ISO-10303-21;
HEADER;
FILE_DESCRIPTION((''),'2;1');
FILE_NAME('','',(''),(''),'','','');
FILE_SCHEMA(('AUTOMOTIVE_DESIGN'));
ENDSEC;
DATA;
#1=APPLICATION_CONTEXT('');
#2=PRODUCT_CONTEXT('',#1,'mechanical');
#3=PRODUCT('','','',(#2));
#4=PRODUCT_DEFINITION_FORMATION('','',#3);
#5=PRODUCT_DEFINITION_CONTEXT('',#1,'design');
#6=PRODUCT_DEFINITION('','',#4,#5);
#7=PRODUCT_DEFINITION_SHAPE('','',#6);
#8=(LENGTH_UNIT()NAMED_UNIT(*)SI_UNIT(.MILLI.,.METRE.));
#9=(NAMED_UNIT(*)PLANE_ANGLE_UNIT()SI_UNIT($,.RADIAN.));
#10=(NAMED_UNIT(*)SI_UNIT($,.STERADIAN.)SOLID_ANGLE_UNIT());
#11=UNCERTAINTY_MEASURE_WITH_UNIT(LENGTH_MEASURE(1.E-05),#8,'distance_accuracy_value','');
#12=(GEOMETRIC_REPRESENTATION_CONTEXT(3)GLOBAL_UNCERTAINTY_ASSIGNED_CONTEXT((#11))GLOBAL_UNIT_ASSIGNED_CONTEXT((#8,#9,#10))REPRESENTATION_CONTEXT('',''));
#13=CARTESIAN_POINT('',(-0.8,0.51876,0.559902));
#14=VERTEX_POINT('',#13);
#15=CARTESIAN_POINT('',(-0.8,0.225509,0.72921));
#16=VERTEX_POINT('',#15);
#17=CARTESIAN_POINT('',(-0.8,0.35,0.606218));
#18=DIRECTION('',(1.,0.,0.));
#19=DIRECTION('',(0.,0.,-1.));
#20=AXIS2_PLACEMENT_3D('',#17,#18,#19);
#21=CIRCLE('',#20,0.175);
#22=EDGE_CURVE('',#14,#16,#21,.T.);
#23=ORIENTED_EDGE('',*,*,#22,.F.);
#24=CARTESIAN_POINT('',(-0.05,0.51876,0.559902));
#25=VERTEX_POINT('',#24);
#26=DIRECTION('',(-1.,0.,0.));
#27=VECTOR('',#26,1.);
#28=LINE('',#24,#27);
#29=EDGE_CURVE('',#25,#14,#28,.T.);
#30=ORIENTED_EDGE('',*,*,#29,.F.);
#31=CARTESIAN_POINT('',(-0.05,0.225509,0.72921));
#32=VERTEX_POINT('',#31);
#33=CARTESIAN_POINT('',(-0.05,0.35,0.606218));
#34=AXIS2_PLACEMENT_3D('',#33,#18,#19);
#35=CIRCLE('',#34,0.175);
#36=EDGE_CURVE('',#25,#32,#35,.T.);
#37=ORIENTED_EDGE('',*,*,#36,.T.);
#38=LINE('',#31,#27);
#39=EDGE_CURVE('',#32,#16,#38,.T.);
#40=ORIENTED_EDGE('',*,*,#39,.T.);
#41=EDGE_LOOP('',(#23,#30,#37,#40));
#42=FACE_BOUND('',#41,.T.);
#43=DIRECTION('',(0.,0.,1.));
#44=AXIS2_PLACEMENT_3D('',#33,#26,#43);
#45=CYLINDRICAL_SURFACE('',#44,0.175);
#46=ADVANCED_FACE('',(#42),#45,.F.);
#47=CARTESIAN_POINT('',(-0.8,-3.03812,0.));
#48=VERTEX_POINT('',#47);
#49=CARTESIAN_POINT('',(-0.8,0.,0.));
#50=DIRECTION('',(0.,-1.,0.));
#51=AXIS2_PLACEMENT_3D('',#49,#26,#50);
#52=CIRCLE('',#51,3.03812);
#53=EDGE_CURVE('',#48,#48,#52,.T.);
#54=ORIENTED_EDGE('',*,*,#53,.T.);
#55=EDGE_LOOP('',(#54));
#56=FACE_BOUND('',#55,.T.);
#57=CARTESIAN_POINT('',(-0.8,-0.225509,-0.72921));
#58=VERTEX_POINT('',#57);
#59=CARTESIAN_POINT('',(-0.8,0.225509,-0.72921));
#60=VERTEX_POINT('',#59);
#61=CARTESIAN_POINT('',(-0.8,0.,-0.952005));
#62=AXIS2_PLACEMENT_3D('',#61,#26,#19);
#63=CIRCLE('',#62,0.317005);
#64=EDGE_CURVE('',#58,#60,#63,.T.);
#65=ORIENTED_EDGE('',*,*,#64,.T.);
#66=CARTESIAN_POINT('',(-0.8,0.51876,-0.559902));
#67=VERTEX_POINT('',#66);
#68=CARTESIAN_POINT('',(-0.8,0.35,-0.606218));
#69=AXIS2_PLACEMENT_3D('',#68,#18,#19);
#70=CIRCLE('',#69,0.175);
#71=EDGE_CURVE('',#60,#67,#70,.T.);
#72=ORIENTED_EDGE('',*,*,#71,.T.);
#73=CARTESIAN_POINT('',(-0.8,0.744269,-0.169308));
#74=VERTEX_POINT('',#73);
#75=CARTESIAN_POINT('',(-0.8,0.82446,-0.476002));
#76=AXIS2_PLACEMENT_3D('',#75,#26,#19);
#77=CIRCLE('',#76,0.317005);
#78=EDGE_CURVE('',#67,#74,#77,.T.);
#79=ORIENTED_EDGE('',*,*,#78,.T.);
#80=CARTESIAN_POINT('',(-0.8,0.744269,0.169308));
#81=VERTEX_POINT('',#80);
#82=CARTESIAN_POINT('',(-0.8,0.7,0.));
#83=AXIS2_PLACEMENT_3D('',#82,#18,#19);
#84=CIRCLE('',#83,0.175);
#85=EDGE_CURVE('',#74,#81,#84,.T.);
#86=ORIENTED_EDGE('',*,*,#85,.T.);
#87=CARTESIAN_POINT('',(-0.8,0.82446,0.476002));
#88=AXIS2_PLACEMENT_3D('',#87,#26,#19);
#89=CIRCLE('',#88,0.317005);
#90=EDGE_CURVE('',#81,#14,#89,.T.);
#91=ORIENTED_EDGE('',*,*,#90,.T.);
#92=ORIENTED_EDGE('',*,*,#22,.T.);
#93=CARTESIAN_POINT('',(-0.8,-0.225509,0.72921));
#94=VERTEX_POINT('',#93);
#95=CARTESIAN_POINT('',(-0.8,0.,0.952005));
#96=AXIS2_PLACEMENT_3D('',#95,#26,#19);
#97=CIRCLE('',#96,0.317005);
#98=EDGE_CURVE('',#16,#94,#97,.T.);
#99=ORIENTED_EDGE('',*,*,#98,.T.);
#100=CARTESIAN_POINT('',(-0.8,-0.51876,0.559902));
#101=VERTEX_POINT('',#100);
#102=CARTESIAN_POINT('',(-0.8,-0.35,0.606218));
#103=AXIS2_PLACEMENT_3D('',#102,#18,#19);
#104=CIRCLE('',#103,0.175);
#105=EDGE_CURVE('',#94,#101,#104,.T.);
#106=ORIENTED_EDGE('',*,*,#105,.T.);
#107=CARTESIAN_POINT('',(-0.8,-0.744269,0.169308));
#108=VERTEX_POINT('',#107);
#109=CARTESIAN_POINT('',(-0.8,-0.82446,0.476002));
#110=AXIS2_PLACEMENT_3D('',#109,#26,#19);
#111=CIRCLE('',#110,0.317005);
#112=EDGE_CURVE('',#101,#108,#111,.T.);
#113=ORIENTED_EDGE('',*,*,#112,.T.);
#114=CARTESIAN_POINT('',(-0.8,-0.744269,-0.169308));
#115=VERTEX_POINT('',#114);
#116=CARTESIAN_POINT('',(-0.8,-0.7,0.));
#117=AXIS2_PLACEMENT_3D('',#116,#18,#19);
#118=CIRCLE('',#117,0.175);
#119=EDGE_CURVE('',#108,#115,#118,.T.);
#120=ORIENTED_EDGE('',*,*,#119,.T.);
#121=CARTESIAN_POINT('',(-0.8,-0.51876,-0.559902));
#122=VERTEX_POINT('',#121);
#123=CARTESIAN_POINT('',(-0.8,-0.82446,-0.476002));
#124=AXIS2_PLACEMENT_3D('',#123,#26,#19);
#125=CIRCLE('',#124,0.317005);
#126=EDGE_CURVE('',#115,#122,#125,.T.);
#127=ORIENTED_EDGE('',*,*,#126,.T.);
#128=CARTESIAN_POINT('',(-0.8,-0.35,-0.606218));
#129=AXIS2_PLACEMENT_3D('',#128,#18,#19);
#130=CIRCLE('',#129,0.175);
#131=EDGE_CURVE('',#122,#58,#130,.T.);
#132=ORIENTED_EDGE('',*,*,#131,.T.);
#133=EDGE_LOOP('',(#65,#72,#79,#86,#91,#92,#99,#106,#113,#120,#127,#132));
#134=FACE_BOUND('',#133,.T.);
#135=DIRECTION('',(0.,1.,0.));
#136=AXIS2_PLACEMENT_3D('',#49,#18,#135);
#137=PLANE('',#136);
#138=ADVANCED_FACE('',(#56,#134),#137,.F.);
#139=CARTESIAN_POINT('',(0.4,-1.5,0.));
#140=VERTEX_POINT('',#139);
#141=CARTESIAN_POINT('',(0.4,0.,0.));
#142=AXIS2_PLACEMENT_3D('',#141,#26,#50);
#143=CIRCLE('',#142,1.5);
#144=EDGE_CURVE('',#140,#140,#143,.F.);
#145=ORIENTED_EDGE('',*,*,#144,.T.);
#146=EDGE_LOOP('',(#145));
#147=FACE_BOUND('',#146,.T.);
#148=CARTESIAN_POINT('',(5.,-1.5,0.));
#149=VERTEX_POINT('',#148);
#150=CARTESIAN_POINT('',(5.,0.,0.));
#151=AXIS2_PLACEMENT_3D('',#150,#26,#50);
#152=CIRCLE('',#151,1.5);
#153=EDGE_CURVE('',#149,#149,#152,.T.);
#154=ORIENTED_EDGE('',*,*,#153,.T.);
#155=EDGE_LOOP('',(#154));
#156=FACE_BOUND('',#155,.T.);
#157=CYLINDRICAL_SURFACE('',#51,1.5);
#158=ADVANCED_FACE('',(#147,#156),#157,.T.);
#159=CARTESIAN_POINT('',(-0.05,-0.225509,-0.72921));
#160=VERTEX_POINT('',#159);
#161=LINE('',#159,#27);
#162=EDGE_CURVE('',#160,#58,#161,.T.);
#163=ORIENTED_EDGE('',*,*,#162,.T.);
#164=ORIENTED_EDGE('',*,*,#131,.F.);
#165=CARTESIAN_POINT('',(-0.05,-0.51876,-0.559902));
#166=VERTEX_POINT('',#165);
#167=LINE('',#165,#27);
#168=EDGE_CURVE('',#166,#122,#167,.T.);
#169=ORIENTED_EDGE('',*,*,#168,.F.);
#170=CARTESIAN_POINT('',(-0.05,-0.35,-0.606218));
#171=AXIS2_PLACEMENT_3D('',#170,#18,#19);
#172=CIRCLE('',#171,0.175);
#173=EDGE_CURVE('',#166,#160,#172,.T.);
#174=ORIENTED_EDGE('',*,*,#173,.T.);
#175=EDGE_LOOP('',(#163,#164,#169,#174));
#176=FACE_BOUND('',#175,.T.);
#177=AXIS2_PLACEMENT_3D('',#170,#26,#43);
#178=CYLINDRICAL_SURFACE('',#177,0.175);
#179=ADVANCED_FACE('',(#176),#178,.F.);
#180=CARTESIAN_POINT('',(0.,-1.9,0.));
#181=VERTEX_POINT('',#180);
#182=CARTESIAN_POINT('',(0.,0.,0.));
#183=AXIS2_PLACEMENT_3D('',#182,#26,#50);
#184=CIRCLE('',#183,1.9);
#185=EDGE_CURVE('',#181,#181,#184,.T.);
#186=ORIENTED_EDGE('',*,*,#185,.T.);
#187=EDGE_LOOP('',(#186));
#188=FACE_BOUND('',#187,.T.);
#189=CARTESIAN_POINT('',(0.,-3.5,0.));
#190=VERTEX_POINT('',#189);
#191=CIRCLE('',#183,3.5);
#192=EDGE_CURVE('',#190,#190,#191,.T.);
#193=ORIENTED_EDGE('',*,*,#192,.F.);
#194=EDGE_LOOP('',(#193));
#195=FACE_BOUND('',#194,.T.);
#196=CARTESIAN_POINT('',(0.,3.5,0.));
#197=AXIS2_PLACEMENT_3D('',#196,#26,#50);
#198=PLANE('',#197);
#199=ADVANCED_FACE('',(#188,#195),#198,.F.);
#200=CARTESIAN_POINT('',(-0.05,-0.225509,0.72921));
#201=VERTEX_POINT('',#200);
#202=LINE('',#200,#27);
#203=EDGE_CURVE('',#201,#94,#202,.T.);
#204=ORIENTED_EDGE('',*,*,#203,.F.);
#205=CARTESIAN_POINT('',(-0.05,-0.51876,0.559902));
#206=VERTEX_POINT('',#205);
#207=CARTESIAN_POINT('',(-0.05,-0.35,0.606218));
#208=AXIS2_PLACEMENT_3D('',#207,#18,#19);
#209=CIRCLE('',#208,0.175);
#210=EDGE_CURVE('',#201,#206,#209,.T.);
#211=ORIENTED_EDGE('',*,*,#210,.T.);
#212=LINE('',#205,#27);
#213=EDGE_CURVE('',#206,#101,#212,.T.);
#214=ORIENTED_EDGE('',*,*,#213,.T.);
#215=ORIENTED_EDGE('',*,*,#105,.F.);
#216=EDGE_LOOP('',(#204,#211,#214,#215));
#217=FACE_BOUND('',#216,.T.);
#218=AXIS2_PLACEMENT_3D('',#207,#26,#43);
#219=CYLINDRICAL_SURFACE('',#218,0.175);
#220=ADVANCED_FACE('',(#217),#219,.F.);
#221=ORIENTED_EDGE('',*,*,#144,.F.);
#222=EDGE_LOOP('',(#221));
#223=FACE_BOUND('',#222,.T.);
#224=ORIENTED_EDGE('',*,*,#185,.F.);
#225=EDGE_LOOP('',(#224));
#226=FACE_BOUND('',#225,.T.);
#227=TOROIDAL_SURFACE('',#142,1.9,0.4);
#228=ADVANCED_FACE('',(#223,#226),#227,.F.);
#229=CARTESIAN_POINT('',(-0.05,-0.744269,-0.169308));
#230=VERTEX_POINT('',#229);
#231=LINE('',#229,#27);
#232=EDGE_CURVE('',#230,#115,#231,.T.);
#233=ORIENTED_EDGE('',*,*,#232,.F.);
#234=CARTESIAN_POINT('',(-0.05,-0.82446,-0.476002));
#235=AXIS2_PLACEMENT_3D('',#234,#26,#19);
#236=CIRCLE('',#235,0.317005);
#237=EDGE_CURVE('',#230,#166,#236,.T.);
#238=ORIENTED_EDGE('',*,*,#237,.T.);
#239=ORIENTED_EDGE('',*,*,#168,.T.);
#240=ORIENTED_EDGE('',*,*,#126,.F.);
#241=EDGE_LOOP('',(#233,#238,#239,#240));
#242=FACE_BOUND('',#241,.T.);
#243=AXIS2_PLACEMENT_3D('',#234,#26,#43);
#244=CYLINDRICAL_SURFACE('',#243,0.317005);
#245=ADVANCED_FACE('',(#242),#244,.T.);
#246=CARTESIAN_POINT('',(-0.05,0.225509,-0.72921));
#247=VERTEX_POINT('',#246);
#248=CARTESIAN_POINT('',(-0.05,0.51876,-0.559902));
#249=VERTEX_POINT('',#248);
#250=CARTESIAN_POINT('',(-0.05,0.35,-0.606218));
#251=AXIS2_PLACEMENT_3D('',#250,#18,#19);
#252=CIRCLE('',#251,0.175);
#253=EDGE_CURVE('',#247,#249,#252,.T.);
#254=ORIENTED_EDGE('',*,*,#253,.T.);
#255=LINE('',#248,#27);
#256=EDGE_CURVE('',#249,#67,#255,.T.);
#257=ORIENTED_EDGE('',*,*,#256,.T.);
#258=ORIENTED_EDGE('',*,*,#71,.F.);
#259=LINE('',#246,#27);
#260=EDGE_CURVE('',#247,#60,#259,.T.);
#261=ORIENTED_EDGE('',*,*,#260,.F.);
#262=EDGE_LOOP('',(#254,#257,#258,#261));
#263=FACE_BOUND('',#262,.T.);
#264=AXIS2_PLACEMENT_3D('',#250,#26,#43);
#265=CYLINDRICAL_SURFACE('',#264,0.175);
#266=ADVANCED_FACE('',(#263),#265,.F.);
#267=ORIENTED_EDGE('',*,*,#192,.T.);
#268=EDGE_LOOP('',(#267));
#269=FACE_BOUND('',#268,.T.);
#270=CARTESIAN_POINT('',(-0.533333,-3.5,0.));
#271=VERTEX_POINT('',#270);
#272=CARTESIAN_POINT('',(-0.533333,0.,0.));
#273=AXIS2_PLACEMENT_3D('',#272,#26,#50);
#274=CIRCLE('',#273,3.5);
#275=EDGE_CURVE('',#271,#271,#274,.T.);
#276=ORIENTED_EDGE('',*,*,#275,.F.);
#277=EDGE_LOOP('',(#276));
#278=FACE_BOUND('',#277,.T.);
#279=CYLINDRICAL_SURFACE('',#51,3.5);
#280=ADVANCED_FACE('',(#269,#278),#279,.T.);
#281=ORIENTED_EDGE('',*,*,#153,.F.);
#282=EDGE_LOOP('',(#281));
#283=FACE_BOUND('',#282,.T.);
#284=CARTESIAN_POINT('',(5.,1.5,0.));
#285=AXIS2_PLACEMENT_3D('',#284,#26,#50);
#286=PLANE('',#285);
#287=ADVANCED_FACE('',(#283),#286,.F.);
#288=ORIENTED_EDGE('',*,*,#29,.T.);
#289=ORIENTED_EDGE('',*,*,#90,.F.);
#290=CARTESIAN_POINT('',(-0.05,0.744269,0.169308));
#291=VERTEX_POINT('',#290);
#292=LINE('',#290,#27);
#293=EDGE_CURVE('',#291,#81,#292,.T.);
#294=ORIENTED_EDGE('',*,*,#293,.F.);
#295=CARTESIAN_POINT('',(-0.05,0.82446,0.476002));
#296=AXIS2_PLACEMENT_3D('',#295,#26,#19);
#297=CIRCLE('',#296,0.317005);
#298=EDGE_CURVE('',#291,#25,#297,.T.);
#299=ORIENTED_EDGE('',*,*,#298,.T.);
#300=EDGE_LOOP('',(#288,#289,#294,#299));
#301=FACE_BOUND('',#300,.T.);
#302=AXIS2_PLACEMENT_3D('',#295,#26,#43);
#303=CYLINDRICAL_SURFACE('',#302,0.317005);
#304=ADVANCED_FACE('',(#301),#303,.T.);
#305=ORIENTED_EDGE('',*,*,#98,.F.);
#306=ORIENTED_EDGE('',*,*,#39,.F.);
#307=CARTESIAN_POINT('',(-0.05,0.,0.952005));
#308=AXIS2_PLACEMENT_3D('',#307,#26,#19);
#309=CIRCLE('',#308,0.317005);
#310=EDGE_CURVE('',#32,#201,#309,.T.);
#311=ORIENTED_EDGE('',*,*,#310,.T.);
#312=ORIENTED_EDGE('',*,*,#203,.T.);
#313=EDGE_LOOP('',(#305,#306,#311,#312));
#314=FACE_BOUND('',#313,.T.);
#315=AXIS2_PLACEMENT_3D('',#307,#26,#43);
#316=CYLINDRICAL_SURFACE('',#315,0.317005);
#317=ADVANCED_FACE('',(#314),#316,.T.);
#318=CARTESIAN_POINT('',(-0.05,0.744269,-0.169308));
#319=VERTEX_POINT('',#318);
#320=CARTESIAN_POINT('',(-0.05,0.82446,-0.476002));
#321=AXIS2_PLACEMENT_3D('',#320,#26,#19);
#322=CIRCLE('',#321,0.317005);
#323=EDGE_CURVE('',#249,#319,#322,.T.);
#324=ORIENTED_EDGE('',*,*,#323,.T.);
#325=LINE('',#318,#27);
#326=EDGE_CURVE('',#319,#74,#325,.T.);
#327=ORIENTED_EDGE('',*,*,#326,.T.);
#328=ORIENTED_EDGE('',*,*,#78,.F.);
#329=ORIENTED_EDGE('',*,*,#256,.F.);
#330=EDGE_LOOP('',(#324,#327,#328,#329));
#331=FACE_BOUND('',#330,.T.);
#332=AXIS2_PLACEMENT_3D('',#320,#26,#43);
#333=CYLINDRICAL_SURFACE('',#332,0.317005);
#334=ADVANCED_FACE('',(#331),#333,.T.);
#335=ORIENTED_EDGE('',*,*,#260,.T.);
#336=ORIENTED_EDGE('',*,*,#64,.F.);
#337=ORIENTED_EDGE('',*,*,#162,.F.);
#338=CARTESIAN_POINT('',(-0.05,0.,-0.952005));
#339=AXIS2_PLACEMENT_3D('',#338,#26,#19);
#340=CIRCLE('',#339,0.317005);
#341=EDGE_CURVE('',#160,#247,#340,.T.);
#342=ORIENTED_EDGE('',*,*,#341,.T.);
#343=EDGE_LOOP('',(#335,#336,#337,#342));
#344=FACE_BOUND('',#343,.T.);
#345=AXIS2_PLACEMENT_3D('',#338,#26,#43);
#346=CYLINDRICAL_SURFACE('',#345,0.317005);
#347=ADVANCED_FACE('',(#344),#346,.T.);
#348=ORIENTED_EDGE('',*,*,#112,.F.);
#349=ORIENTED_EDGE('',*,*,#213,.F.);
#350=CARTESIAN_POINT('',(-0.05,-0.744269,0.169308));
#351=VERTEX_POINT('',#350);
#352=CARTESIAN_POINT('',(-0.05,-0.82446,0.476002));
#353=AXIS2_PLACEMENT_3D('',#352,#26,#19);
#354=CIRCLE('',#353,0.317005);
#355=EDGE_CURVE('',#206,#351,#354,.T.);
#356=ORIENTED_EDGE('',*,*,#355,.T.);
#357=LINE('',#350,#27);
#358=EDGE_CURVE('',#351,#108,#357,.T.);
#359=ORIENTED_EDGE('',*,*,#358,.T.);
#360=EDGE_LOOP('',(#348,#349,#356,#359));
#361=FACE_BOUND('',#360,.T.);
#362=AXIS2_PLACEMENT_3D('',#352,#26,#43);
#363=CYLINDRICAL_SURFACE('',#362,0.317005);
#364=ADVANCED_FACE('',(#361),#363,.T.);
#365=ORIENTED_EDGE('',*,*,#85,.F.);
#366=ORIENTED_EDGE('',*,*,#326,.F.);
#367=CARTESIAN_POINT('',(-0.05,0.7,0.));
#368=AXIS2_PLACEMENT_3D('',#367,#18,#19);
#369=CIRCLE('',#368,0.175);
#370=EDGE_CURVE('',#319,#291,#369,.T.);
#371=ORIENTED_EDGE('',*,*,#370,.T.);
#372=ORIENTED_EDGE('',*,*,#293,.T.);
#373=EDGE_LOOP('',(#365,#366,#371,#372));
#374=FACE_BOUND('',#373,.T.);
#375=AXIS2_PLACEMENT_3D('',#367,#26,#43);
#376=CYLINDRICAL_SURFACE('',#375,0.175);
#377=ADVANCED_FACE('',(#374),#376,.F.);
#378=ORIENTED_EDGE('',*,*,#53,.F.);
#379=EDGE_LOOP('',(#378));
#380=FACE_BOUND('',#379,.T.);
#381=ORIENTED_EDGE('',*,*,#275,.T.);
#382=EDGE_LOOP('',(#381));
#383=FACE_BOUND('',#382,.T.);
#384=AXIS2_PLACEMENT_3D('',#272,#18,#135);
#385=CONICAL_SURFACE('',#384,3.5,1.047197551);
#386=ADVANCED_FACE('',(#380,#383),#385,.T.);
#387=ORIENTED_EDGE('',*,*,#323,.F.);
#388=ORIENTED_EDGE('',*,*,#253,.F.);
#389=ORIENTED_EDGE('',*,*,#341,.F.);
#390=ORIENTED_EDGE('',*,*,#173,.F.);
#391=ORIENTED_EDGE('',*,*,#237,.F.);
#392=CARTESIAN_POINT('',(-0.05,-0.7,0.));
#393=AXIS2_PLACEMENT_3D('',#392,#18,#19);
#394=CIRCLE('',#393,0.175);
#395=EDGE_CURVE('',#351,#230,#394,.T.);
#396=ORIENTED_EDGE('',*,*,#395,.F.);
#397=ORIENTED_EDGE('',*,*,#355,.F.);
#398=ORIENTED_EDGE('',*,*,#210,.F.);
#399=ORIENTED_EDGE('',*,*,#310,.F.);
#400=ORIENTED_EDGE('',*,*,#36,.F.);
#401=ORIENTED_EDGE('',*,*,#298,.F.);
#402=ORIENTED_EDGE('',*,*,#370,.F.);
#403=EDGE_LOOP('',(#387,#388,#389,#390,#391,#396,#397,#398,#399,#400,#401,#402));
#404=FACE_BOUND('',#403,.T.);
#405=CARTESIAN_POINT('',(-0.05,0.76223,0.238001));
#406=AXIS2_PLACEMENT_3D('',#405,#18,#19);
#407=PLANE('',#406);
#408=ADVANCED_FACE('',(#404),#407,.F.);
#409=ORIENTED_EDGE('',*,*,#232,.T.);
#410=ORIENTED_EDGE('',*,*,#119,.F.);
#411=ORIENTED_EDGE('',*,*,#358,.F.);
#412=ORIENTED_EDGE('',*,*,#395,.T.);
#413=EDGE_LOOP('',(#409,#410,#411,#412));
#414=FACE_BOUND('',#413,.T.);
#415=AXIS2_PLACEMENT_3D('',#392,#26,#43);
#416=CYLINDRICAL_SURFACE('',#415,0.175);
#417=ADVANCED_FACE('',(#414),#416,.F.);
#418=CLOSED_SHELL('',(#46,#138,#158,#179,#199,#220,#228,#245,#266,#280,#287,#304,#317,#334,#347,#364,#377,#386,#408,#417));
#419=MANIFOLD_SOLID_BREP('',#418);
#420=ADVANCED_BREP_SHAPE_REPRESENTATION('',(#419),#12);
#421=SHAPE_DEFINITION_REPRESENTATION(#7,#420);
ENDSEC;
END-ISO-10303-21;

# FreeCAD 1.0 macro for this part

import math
import FreeCAD as App
import Part
import Sketcher

V = App.Vector
Q = App.Units.Quantity


def edges_at(feature, points):
    """Names of the edges that pass closest to the given points."""
    edges = feature.Shape.Edges
    near = lambda p: min(range(len(edges)), key=lambda i: edges[i].distToShape(Part.Vertex(*p))[0])
    return sorted({f"Edge{near(p) + 1}" for p in points})


def add_polygon(sketch, points):
    """Adds a closed chain of lines whose ends are joined by coincident constraints."""
    first, n = sketch.GeometryCount, len(points)
    for a, b in zip(points, points[1:] + points[:1]):
        sketch.addGeometry(Part.LineSegment(App.Vector(*a, 0), App.Vector(*b, 0)), False)
    for i in range(n):
        sketch.addConstraint(Sketcher.Constraint("Coincident", first + i, 2, first + (i + 1) % n, 1))

doc = App.newDocument("Part")
params = doc.addObject("Spreadsheet::Sheet", "Params")
for row, (alias, value) in enumerate([
    ("sketch1_width", "5 mm"),
    ("sketch1_height", "2 mm"),
    ("sketch1_width2", "5.8 mm"),
    ("sketch1_height2", "1.5 mm"),
    ("revolution_angle", "360 deg"),
    ("pocket1_length", "0.75 mm"),
    ("fillet_radius", "0.4 mm"),
], start=1):
    params.set(f"A{row}", alias)
    params.set(f"B{row}", "=" + value)
    params.setAlias(f"B{row}", alias)

body = doc.addObject("PartDesign::Body", "Body")

sketch1 = body.newObject("Sketcher::SketchObject", "Sketch")
sketch1.AttachmentSupport = (doc.getObject("XY_Plane"), [""])
sketch1.MapMode = "FlatFace"
add_polygon(sketch1, [(5, 1.5), (0, 1.5), (0, 3.5), (-0.5, 3.5), (-0.8, 3), (-0.8, 0), (5, 0)])
sketch1.addConstraint([
    Sketcher.Constraint("Horizontal", 0),
    Sketcher.Constraint("Vertical", 1),
    Sketcher.Constraint("Horizontal", 2),
    Sketcher.Constraint("Vertical", 4),
    Sketcher.Constraint("Horizontal", 5),
    Sketcher.Constraint("Vertical", 6),
    Sketcher.Constraint("PointOnObject", 0, 2, -2),
    Sketcher.Constraint("PointOnObject", 4, 2, -1),
    Sketcher.Constraint("DistanceX", 0, 2, 0, 1, 5.0),
    Sketcher.Constraint("DistanceY", 1, 1, 1, 2, 2.0),
    Sketcher.Constraint("Angle", 3, Q("-120 deg")),
    Sketcher.Constraint("DistanceX", 5, 1, 5, 2, 5.8),
    Sketcher.Constraint("DistanceY", 6, 1, 6, 2, 1.5),
    Sketcher.Constraint("DistanceY", 4, 2, 4, 1, 3.03812),
])
sketch1.setExpression("Constraints[15]", "Params.sketch1_width")
sketch1.setExpression("Constraints[16]", "Params.sketch1_height")
sketch1.setExpression("Constraints[18]", "Params.sketch1_width2")
sketch1.setExpression("Constraints[19]", "Params.sketch1_height2")
revolution = body.newObject("PartDesign::Revolution", "Revolution")
revolution.Profile = sketch1
revolution.ReferenceAxis = (sketch1, ["H_Axis"])
revolution.setExpression("Angle", "Params.revolution_angle")

sketch2 = body.newObject("Sketcher::SketchObject", "Sketch001")
sketch2.AttachmentSupport = (doc.getObject("YZ_Plane"), [""])
sketch2.MapMode = "FlatFace"
sketch2.AttachmentOffset = App.Placement(V(0, 0, -0.8), App.Rotation())
sketch2.addGeometry([
    Part.ArcOfCircle(Part.Circle(V(0.7, 0, 0), V(0, 0, 1), 0.17), math.radians(-75), math.radians(75)),
    Part.ArcOfCircle(Part.Circle(V(0.82, 0.48, 0), V(0, 0, 1), 0.32), math.radians(165), math.radians(255)),
    Part.ArcOfCircle(Part.Circle(V(0.35, 0.61, 0), V(0, 0, 1), 0.17), math.radians(-15), math.radians(135)),
    Part.ArcOfCircle(Part.Circle(V(0, 0.95, 0), V(0, 0, 1), 0.32), math.radians(-135), math.radians(-45)),
    Part.ArcOfCircle(Part.Circle(V(-0.35, 0.61, 0), V(0, 0, 1), 0.17), math.radians(45), math.radians(195)),
    Part.ArcOfCircle(Part.Circle(V(-0.82, 0.48, 0), V(0, 0, 1), 0.32), math.radians(-75), math.radians(15)),
    Part.ArcOfCircle(Part.Circle(V(-0.7, 0, 0), V(0, 0, 1), 0.17), math.radians(105), math.radians(255)),
    Part.ArcOfCircle(Part.Circle(V(-0.82, -0.48, 0), V(0, 0, 1), 0.32), math.radians(-15), math.radians(75)),
    Part.ArcOfCircle(Part.Circle(V(-0.35, -0.61, 0), V(0, 0, 1), 0.17), math.radians(165), math.radians(315)),
    Part.ArcOfCircle(Part.Circle(V(0, -0.95, 0), V(0, 0, 1), 0.32), math.radians(45), math.radians(135)),
    Part.ArcOfCircle(Part.Circle(V(0.35, -0.61, 0), V(0, 0, 1), 0.17), math.radians(-135), math.radians(15)),
    Part.ArcOfCircle(Part.Circle(V(0.82, -0.48, 0), V(0, 0, 1), 0.32), math.radians(105), math.radians(195)),
], False)
sketch2.addConstraint([
    Sketcher.Constraint("Tangent", 0, 2, 1, 2),
    Sketcher.Constraint("Tangent", 1, 1, 2, 1),
    Sketcher.Constraint("Tangent", 2, 2, 3, 2),
    Sketcher.Constraint("Tangent", 3, 1, 4, 1),
    Sketcher.Constraint("Tangent", 4, 2, 5, 2),
    Sketcher.Constraint("Tangent", 5, 1, 6, 1),
    Sketcher.Constraint("Tangent", 6, 2, 7, 2),
    Sketcher.Constraint("Tangent", 7, 1, 8, 1),
    Sketcher.Constraint("Tangent", 8, 2, 9, 2),
    Sketcher.Constraint("Tangent", 9, 1, 10, 1),
    Sketcher.Constraint("Tangent", 10, 2, 11, 2),
    Sketcher.Constraint("Tangent", 11, 1, 0, 1),
    Sketcher.Constraint("Equal", 0, 2),
    Sketcher.Constraint("Equal", 1, 3),
    Sketcher.Constraint("Equal", 2, 4),
    Sketcher.Constraint("Equal", 3, 5),
    Sketcher.Constraint("Equal", 4, 6),
    Sketcher.Constraint("Equal", 5, 7),
    Sketcher.Constraint("Equal", 6, 8),
    Sketcher.Constraint("Equal", 7, 9),
    Sketcher.Constraint("Equal", 8, 10),
    Sketcher.Constraint("Equal", 9, 11),
    Sketcher.Constraint("Symmetric", 0, 3, 6, 3, -1, 1),
    Sketcher.Constraint("Symmetric", 2, 3, 8, 3, -1, 1),
    Sketcher.Constraint("Symmetric", 4, 3, 10, 3, -1, 1),
    Sketcher.Constraint("Symmetric", 2, 3, 4, 3, -2),
    Sketcher.Constraint("PointOnObject", 0, 3, -1),
    Sketcher.Constraint("Radius", 0, 0.175),
    Sketcher.Constraint("DistanceX", -1, 1, 0, 3, 0.7),
    Sketcher.Constraint("DistanceX", 4, 3, 2, 3, 0.7),
    Sketcher.Constraint("Radius", 1, 0.317005),
    Sketcher.Constraint("DistanceY", -1, 1, 1, 1, 0.559902),
])
pocket1 = body.newObject("PartDesign::Pocket", "Pocket")
pocket1.Profile = sketch2
pocket1.setExpression("Length", "Params.pocket1_length")
pocket1.Reversed = True
doc.recompute()

fillet = body.newObject("PartDesign::Fillet", "Fillet")
fillet.Base = (pocket1, edges_at(pocket1, [(0, 1.5, 0)]))
fillet.setExpression("Radius", "Params.fillet_radius")

doc.recompute()
